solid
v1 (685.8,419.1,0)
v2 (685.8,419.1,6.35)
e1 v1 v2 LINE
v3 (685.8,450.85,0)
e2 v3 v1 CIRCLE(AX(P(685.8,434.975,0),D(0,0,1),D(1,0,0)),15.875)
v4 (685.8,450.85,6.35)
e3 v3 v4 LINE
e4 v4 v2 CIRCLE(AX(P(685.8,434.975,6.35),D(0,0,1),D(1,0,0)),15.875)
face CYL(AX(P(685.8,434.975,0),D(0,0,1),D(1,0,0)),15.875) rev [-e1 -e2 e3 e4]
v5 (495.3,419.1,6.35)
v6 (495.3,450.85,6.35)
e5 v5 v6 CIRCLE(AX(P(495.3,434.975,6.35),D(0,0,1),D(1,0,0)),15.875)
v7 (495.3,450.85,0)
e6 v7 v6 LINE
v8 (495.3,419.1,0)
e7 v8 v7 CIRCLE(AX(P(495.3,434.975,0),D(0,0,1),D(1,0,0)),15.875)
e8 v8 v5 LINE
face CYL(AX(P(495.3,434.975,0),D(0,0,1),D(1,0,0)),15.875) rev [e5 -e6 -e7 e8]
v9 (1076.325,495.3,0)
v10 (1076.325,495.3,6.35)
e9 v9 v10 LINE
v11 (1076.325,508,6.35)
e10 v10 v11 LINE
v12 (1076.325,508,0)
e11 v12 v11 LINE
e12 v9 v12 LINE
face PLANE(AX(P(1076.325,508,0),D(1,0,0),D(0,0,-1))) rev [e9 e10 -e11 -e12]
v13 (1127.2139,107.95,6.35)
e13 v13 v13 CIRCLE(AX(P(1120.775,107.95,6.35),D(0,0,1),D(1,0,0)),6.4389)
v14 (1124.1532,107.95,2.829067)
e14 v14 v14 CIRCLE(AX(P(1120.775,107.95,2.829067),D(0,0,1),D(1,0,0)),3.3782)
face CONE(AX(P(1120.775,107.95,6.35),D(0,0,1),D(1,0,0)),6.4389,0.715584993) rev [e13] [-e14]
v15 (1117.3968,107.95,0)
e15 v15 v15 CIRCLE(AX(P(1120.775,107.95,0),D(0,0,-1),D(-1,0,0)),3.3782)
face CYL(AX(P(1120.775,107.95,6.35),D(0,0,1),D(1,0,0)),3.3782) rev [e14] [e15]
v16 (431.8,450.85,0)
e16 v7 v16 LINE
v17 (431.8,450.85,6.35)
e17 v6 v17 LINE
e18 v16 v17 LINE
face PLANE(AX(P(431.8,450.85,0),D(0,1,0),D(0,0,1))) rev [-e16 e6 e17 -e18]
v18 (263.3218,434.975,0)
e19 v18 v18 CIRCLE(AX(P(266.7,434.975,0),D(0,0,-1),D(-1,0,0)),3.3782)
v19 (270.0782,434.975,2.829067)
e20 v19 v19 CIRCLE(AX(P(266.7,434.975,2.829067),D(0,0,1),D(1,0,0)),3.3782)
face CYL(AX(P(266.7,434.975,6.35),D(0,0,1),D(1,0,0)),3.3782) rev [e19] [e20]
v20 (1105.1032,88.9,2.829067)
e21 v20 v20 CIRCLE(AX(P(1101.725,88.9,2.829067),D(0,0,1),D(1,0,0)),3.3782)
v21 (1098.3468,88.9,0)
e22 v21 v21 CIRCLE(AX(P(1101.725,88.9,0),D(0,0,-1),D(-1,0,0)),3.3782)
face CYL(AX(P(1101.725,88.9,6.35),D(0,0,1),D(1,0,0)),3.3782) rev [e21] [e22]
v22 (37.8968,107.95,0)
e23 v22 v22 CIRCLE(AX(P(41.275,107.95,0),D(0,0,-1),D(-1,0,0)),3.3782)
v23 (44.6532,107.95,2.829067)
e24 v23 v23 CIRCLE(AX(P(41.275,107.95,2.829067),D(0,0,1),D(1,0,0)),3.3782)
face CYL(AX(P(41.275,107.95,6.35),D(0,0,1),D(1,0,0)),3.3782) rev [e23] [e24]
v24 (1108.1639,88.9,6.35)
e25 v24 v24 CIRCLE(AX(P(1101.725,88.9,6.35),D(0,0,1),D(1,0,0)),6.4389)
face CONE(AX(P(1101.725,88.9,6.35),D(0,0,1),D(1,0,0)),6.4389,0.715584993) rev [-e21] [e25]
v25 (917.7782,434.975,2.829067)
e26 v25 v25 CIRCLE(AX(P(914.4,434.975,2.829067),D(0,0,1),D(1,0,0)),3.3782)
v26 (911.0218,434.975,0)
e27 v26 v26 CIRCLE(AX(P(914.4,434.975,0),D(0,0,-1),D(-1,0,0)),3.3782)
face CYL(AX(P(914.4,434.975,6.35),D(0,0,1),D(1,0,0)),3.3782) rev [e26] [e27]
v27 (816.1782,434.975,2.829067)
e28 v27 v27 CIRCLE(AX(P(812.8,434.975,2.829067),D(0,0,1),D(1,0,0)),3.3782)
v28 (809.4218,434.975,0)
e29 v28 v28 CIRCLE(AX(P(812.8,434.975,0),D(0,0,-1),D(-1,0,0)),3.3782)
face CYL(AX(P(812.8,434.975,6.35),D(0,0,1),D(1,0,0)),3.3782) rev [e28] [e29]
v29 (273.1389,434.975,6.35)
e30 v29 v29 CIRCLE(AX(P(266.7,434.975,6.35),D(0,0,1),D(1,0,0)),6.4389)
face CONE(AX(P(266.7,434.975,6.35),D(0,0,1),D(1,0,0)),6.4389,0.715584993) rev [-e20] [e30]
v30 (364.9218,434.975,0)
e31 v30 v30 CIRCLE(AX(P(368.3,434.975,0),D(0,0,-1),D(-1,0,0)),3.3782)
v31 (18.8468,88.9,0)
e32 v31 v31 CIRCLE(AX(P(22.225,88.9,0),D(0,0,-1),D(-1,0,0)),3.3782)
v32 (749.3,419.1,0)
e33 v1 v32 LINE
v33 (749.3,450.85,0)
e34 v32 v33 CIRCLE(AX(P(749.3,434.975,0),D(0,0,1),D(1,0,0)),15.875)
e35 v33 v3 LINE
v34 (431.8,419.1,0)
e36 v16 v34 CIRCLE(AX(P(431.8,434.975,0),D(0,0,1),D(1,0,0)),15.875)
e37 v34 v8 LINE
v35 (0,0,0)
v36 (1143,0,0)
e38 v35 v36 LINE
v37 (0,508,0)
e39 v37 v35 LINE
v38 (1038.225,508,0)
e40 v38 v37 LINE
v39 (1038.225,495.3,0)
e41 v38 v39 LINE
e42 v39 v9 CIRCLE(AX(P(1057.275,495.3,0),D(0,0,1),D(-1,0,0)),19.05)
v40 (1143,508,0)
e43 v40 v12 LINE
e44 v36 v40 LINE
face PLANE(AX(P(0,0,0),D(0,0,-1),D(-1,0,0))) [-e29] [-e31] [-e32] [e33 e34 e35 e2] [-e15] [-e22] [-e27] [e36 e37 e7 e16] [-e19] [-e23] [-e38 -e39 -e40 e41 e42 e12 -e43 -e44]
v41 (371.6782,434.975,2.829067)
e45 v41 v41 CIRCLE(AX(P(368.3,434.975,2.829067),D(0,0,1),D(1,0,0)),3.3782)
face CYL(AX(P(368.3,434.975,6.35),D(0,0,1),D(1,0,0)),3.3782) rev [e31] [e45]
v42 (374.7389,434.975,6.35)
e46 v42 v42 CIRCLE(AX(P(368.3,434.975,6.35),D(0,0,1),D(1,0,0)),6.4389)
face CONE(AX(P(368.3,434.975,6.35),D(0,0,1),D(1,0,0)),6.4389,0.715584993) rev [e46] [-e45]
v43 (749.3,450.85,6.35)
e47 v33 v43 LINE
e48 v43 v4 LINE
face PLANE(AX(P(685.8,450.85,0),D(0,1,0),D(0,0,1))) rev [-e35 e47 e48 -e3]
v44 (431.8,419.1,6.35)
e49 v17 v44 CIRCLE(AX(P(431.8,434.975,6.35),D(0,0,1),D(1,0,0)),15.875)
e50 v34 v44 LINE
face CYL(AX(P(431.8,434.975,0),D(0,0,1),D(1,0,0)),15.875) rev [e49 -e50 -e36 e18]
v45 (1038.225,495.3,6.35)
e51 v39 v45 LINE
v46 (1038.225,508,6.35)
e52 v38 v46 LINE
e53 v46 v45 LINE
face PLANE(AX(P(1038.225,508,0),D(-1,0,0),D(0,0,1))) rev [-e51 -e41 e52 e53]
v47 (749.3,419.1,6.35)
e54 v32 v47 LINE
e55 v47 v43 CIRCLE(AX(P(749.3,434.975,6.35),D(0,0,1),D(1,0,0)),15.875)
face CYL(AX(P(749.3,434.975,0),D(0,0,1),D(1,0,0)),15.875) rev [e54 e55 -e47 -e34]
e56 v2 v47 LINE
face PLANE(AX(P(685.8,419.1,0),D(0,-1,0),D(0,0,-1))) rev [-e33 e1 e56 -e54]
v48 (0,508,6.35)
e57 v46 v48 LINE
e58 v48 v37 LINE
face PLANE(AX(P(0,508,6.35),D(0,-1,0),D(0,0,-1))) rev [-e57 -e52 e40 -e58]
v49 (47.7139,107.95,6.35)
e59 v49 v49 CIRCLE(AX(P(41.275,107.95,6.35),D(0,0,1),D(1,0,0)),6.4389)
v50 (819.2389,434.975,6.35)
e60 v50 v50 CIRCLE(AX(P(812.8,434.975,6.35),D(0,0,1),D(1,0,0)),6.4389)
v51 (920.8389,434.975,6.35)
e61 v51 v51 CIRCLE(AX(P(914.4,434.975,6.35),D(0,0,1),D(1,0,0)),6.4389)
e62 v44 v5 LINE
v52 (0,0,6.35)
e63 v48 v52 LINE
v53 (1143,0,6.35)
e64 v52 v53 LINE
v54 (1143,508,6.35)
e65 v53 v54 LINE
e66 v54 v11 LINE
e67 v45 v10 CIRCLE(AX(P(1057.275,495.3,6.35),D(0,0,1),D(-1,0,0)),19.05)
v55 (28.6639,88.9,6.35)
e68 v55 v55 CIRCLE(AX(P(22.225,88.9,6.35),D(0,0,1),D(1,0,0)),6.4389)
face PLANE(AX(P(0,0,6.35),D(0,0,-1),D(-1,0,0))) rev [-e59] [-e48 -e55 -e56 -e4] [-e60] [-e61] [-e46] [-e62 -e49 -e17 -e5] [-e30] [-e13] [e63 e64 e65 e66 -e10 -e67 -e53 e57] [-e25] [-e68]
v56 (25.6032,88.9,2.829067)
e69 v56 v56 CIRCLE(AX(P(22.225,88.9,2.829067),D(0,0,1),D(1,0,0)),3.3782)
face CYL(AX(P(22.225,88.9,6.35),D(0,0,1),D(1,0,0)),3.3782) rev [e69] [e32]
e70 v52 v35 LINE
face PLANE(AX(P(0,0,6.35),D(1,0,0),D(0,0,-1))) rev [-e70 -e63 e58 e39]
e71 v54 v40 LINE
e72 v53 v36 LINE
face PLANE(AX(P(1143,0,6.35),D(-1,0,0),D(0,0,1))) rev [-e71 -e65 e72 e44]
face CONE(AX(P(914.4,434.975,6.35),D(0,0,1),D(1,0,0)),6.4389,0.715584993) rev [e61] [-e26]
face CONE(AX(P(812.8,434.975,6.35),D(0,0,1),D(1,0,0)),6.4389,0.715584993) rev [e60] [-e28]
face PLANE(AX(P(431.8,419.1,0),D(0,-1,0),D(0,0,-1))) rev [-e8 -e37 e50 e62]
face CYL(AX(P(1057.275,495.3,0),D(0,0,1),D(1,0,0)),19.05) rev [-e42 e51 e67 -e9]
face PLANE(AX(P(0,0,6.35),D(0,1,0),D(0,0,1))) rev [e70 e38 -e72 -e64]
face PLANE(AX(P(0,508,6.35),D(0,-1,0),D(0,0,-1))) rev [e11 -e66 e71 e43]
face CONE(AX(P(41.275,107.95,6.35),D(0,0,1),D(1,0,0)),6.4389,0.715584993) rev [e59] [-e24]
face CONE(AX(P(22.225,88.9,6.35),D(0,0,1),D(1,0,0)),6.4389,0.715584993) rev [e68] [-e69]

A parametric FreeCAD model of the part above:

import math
import FreeCAD as App
import Part
import Sketcher
from FreeCAD import Vector
Q = App.Units.Quantity


def add_polygon(sketch, points):
    """Adds a closed chain of lines whose ends are joined by coincident constraints."""
    first, n = sketch.GeometryCount, len(points)
    for a, b in zip(points, points[1:] + points[:1]):
        sketch.addGeometry(Part.LineSegment(App.Vector(*a, 0), App.Vector(*b, 0)), False)
    for i in range(n):
        sketch.addConstraint(Sketcher.Constraint("Coincident", first + i, 2, first + (i + 1) % n, 1))

doc = App.newDocument("Part")
body = doc.addObject("PartDesign::Body", "Body")

# Sketch on XY plane
sketch1 = body.newObject("Sketcher::SketchObject", "Sketch")
sketch1.AttachmentSupport = (doc.getObject("XY_Plane"), [""])
sketch1.MapMode = "FlatFace"
add_polygon(sketch1, [(0, 508), (0, 0), (1143, 0), (1143, 508)])  # lines 0-3
sketch1.addConstraint([
    Sketcher.Constraint("Vertical", 0),
    Sketcher.Constraint("Horizontal", 1),
    Sketcher.Constraint("Vertical", 2),
    Sketcher.Constraint("Horizontal", 3),
    Sketcher.Constraint("Coincident", 0, 2, -1, 1),
    Sketcher.Constraint("DistanceX", 1, 1, 1, 2, Q("45 in")),
    Sketcher.Constraint("DistanceY", 0, 2, 0, 1, Q("20 in")),
])
pad1 = body.newObject("PartDesign::Pad", "Pad")
pad1.Profile = sketch1
pad1.Length = Q("0.25 in")

# Sketch on XY plane
sketch2 = body.newObject("Sketcher::SketchObject", "Sketch001")
sketch2.AttachmentSupport = (doc.getObject("XY_Plane"), [""])
sketch2.MapMode = "FlatFace"
sketch2.AttachmentOffset = App.Placement(Vector(0, 0, 0.25 * 25.4), App.Rotation())
sketch2.addGeometry([
    Part.LineSegment(Vector(495.3, 450.85, 0), Vector(431.8, 450.85, 0)),  # 0
    Part.ArcOfCircle(Part.Circle(Vector(431.8, 434.975, 0), Vector(0, 0, 1), 15.875), math.radians(90), math.radians(270)),  # 1
    Part.LineSegment(Vector(431.8, 419.1, 0), Vector(495.3, 419.1, 0)),  # 2
    Part.ArcOfCircle(Part.Circle(Vector(495.3, 434.975, 0), Vector(0, 0, 1), 15.875), math.radians(-90), math.radians(90)),  # 3
    Part.LineSegment(Vector(749.3, 450.85, 0), Vector(685.8, 450.85, 0)),  # 4
    Part.ArcOfCircle(Part.Circle(Vector(685.8, 434.975, 0), Vector(0, 0, 1), 15.875), math.radians(90), math.radians(270)),  # 5
    Part.LineSegment(Vector(685.8, 419.1, 0), Vector(749.3, 419.1, 0)),  # 6
    Part.ArcOfCircle(Part.Circle(Vector(749.3, 434.975, 0), Vector(0, 0, 1), 15.875), math.radians(-90), math.radians(90)),  # 7
], False)
sketch2.addConstraint([
    Sketcher.Constraint("Tangent", 0, 2, 1, 1),
    Sketcher.Constraint("Tangent", 1, 2, 2, 1),
    Sketcher.Constraint("Tangent", 2, 2, 3, 1),
    Sketcher.Constraint("Tangent", 3, 2, 0, 1),
    Sketcher.Constraint("Tangent", 4, 2, 5, 1),
    Sketcher.Constraint("Tangent", 5, 2, 6, 1),
    Sketcher.Constraint("Tangent", 6, 2, 7, 1),
    Sketcher.Constraint("Tangent", 7, 2, 4, 1),
    Sketcher.Constraint("Horizontal", 0),
    Sketcher.Constraint("Horizontal", 2),
    Sketcher.Constraint("Horizontal", 4),
    Sketcher.Constraint("Horizontal", 6),
    Sketcher.Constraint("Equal", 3, 5),
    Sketcher.Constraint("Horizontal", 3, 3, 5, 3),
    Sketcher.Constraint("Equal", 2, 4),
    Sketcher.Constraint("DistanceX", 0, 2, 0, 1, Q("2.5 in")),
    Sketcher.Constraint("DistanceX", -1, 1, 1, 3, Q("17 in")),
    Sketcher.Constraint("DistanceX", -1, 1, 5, 3, Q("27 in")),
    Sketcher.Constraint("Radius", 1, Q("0.625 in")),
    Sketcher.Constraint("DistanceY", -1, 1, 1, 2, Q("16.5 in")),
])
pocket1 = body.newObject("PartDesign::Pocket", "Pocket")
pocket1.Profile = sketch2
pocket1.Type = "ThroughAll"

# Sketch on YZ plane
sketch3 = body.newObject("Sketcher::SketchObject", "Sketch002")
sketch3.AttachmentSupport = (doc.getObject("YZ_Plane"), [""])
sketch3.MapMode = "FlatFace"
sketch3.AttachmentOffset = App.Placement(Vector(0, 0, 36 * 25.4), App.Rotation())
add_polygon(sketch3, [(434.975, 0), (434.975, 6.35), (428.5361, 6.35), (431.5968, 2.829067), (431.5968, 0)])  # lines 0-4
sketch3.addGeometry(Part.LineSegment(Vector(434.975, 6.35, 0), Vector(434.975, 0, 0)), True)  # axis
sketch3.addConstraint([
    Sketcher.Constraint("Vertical", 0),
    Sketcher.Constraint("Horizontal", 1),
    Sketcher.Constraint("Vertical", 3),
    Sketcher.Constraint("Horizontal", 4),
    Sketcher.Constraint("Vertical", 5),
    Sketcher.Constraint("Coincident", 5, 1, 0, 2),
    Sketcher.Constraint("PointOnObject", 3, 2, -1),
    Sketcher.Constraint("PointOnObject", 5, 2, -1),
    Sketcher.Constraint("Angle", 2, Q("-49 deg")),
    Sketcher.Constraint("DistanceY", 0, 1, 0, 2, Q("0.25 in")),
    Sketcher.Constraint("DistanceX", 4, 1, 4, 2, Q("0.133 in")),
    Sketcher.Constraint("DistanceX", 1, 2, 1, 1, Q("0.2535 in")),
    Sketcher.Constraint("DistanceX", -1, 1, 0, 2, Q("17.125 in")),
])
groove = body.newObject("PartDesign::Groove", "Groove")
groove.Profile = sketch3
groove.ReferenceAxis = (sketch3, ["Axis0"])
groove.Angle = 360
doc.recompute()

linearpattern = body.newObject("PartDesign::LinearPattern", "LinearPattern")
linearpattern.Originals = [groove]
linearpattern.Direction = (doc.getObject("X_Axis"), [""])
linearpattern.Mode = "offset"
linearpattern.Offset = Q("4 in")
linearpattern.Occurrences = 2
linearpattern.Reversed = True
body.Tip = linearpattern
doc.recompute()

linearpattern2 = body.newObject("PartDesign::LinearPattern", "LinearPattern001")
linearpattern2.Originals = [groove]
linearpattern2.Direction = (doc.getObject("X_Axis"), [""])
linearpattern2.Mode = "offset"
linearpattern2.Offset = Q("21.5 in")
linearpattern2.Occurrences = 2
linearpattern2.Reversed = True
body.Tip = linearpattern2
doc.recompute()

linearpattern3 = body.newObject("PartDesign::LinearPattern", "LinearPattern002")
linearpattern3.Originals = [groove]
linearpattern3.Direction = (doc.getObject("X_Axis"), [""])
linearpattern3.Mode = "offset"
linearpattern3.Offset = Q("25.5 in")
linearpattern3.Occurrences = 2
linearpattern3.Reversed = True
body.Tip = linearpattern3
doc.recompute()

datumline = body.newObject("PartDesign::Line", "DatumLine")
datumline.Placement = App.Placement(Vector(0, 0, 0), App.Rotation(Vector(0, 0, 1), Vector(0.533684045, -0.845683948, 0)))
linearpattern4 = body.newObject("PartDesign::LinearPattern", "LinearPattern003")
linearpattern4.Originals = [groove]
linearpattern4.Direction = (datumline, [""])
linearpattern4.Mode = "offset"
linearpattern4.Offset = 386.698838
linearpattern4.Occurrences = 2
body.Tip = linearpattern4
doc.recompute()

datumline2 = body.newObject("PartDesign::Line", "DatumLine001")
datumline2.Placement = App.Placement(Vector(0, 0, 0), App.Rotation(Vector(0, 0, 1), Vector(0.476023213, -0.879432715, 0)))
linearpattern5 = body.newObject("PartDesign::LinearPattern", "LinearPattern004")
linearpattern5.Originals = [groove]
linearpattern5.Direction = (datumline2, [""])
linearpattern5.Mode = "offset"
linearpattern5.Offset = 393.520725
linearpattern5.Occurrences = 2
body.Tip = linearpattern5
doc.recompute()

datumline3 = body.newObject("PartDesign::Line", "DatumLine002")
datumline3.Placement = App.Placement(Vector(0, 0, 0), App.Rotation(Vector(0, 0, 1), Vector(-0.936469049, -0.350750226, 0)))
linearpattern6 = body.newObject("PartDesign::LinearPattern", "LinearPattern005")
linearpattern6.Originals = [groove]
linearpattern6.Direction = (datumline3, [""])
linearpattern6.Mode = "offset"
linearpattern6.Offset = 932.358631
linearpattern6.Occurrences = 2
body.Tip = linearpattern6
doc.recompute()

datumline4 = body.newObject("PartDesign::Line", "DatumLine003")
datumline4.Placement = App.Placement(Vector(0, 0, 0), App.Rotation(Vector(0, 0, 1), Vector(-0.932315654, -0.361645574, 0)))
linearpattern7 = body.newObject("PartDesign::LinearPattern", "LinearPattern006")
linearpattern7.Originals = [groove]
linearpattern7.Direction = (datumline4, [""])
linearpattern7.Mode = "offset"
linearpattern7.Offset = 956.945211
linearpattern7.Occurrences = 2
body.Tip = linearpattern7

# Sketch on XY plane
sketch4 = body.newObject("Sketcher::SketchObject", "Sketch003")
sketch4.AttachmentSupport = (doc.getObject("XY_Plane"), [""])
sketch4.MapMode = "FlatFace"
sketch4.AttachmentOffset = App.Placement(Vector(0, 0, 0.25 * 25.4), App.Rotation())
sketch4.addGeometry([
    Part.LineSegment(Vector(1076.325, 508, 0), Vector(1038.225, 508, 0)),
    Part.LineSegment(Vector(1038.225, 508, 0), Vector(1038.225, 495.3, 0)),
    Part.ArcOfCircle(Part.Circle(Vector(1057.275, 495.3, 0), Vector(0, 0, 1), 19.05), math.radians(180), math.radians(360)),
    Part.LineSegment(Vector(1076.325, 495.3, 0), Vector(1076.325, 508, 0)),
], False)
sketch4.addConstraint([
    Sketcher.Constraint("Coincident", 0, 2, 1, 1),
    Sketcher.Constraint("Tangent", 1, 2, 2, 1),
    Sketcher.Constraint("Tangent", 2, 2, 3, 1),
    Sketcher.Constraint("Coincident", 3, 2, 0, 1),
    Sketcher.Constraint("Horizontal", 0),
    Sketcher.Constraint("Vertical", 1),
    Sketcher.Constraint("Vertical", 3),
    Sketcher.Constraint("Radius", 2, Q("0.75 in")),
    Sketcher.Constraint("DistanceY", 1, 2, 1, 1, Q("0.5 in")),
    Sketcher.Constraint("DistanceY", -1, 1, 0, 2, Q("20 in")),
    Sketcher.Constraint("DistanceX", -1, 1, 2, 3, Q("41.625 in")),
])
pocket2 = body.newObject("PartDesign::Pocket", "Pocket001")
pocket2.Profile = sketch4
pocket2.Type = "ThroughAll"

doc.recompute()
